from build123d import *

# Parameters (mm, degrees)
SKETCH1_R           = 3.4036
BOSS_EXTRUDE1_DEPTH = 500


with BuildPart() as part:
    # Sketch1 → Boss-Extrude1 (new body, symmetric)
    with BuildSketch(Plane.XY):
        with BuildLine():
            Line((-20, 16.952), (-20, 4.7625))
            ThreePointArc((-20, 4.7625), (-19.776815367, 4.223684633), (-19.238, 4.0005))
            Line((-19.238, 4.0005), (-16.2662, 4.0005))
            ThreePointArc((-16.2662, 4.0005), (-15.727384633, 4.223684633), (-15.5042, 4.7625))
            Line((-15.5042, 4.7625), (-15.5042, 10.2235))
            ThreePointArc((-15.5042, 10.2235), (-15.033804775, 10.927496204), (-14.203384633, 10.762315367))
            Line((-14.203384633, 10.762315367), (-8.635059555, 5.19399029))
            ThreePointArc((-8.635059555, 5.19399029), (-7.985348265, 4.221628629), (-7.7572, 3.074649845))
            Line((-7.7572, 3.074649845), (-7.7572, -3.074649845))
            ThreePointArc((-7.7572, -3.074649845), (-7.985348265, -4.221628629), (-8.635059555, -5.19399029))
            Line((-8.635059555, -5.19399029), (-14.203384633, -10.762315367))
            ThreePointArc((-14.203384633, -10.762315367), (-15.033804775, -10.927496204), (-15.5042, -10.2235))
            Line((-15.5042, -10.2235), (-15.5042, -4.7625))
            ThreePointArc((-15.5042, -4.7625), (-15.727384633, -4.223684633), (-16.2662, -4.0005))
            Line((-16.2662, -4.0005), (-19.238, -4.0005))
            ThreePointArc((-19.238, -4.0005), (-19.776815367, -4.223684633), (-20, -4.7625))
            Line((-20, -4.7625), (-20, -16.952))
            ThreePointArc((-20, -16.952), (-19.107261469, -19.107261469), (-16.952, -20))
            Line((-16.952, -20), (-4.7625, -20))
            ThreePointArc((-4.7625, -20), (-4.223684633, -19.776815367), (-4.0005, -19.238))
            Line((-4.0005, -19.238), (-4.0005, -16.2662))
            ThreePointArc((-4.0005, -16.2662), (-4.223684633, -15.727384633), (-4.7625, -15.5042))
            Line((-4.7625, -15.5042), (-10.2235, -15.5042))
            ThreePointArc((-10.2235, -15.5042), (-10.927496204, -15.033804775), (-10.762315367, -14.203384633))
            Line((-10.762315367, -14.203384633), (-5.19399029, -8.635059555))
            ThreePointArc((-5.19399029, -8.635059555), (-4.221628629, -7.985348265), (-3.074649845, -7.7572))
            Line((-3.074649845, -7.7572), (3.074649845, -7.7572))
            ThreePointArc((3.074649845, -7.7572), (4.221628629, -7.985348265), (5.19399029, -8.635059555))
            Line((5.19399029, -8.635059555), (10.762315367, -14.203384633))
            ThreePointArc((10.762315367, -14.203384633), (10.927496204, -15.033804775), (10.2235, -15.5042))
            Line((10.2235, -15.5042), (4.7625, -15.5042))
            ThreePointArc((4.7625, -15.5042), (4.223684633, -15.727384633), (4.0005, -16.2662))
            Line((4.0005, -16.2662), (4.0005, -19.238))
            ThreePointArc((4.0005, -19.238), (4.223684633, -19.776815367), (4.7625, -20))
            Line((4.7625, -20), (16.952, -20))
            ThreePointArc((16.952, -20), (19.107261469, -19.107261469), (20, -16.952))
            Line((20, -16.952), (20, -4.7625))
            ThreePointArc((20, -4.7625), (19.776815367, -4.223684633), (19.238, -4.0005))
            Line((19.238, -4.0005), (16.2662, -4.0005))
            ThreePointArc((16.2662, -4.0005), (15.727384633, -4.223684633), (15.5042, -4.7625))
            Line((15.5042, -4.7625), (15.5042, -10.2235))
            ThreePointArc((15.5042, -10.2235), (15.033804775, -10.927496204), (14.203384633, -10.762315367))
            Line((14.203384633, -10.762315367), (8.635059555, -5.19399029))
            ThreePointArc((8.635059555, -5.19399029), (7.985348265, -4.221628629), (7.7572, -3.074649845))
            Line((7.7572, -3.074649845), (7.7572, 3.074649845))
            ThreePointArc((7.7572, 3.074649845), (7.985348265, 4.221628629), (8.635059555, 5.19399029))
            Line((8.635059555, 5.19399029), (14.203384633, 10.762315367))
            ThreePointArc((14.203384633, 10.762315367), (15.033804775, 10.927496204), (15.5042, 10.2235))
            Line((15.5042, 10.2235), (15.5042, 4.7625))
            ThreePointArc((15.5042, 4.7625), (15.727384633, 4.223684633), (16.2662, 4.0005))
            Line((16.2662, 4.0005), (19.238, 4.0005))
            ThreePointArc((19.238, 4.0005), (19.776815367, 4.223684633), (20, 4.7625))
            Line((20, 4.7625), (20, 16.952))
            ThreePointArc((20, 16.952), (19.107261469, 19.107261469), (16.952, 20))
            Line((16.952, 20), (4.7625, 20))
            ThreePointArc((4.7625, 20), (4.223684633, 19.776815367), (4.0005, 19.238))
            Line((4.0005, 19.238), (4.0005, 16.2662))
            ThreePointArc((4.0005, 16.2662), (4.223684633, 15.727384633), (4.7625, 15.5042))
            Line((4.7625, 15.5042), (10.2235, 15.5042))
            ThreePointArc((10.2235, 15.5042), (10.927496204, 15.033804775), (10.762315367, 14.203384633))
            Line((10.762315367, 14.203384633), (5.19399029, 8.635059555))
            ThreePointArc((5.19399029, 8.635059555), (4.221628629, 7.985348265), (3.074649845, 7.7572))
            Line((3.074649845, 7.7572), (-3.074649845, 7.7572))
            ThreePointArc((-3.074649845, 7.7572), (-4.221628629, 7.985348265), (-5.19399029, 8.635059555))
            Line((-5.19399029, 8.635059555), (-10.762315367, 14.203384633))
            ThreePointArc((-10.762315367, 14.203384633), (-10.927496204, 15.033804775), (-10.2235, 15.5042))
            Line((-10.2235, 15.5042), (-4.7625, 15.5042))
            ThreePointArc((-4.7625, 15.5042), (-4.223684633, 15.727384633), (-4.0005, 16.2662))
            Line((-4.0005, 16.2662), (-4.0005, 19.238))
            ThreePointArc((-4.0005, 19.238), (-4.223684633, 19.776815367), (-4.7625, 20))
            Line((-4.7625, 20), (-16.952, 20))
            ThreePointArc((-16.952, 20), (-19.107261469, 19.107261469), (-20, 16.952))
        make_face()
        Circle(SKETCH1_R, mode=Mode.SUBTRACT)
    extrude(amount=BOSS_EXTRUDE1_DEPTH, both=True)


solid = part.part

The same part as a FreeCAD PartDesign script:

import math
import FreeCAD as App
import Part
import Sketcher
Q = App.Units.Quantity

doc = App.newDocument("Part")
params = doc.addObject("Spreadsheet::Sheet", "Params")
for row, (alias, value) in enumerate([
    ("sketch1_radius", "0.03 in"),
    ("sketch1_radius2", "0.12 in"),
    ("sketch1_diameter", "0.268 in"),
    ("sketch1_radius3", "0.118 in"),
    ("sketch1_width", "0.117 in"),
    ("pad1_length", "1000 mm"),
], start=1):
    params.set(f"A{row}", alias)
    params.set(f"B{row}", "=" + value)
    params.setAlias(f"B{row}", alias)

body = doc.addObject("PartDesign::Body", "Body")

# Sketch on XY plane
sketch1 = body.newObject("Sketcher::SketchObject", "Sketch")
sketch1.AttachmentSupport = (doc.getObject("XY_Plane"), [""])
sketch1.MapMode = "FlatFace"
sketch1.addGeometry([
    Part.LineSegment(App.Vector(-20, 16.952, 0), App.Vector(-20, 4.7625, 0)),  # 0
    Part.ArcOfCircle(Part.Circle(App.Vector(-19.238, 4.7625, 0), App.Vector(0, 0, 1), 0.762), math.radians(-180), math.radians(-90)),  # 1
    Part.LineSegment(App.Vector(-19.238, 4.0005, 0), App.Vector(-16.2662, 4.0005, 0)),  # 2
    Part.ArcOfCircle(Part.Circle(App.Vector(-16.2662, 4.7625, 0), App.Vector(0, 0, 1), 0.762), math.radians(-90), math.radians(0)),  # 3
    Part.LineSegment(App.Vector(-15.5042, 4.7625, 0), App.Vector(-15.5042, 10.2235, 0)),  # 4
    Part.ArcOfCircle(Part.Circle(App.Vector(-14.7422, 10.2235, 0), App.Vector(0, 0, 1), 0.762), math.radians(45), math.radians(180)),  # 5
    Part.LineSegment(App.Vector(-14.203385, 10.762315, 0), App.Vector(-8.63506, 5.19399, 0)),  # 6
    Part.ArcOfCircle(Part.Circle(App.Vector(-10.7544, 3.07465, 0), App.Vector(0, 0, 1), 2.9972), math.radians(0), math.radians(45)),  # 7
    Part.LineSegment(App.Vector(-7.7572, 3.07465, 0), App.Vector(-7.7572, -3.07465, 0)),  # 8
    Part.ArcOfCircle(Part.Circle(App.Vector(-10.7544, -3.07465, 0), App.Vector(0, 0, 1), 2.9972), math.radians(-45), math.radians(0)),  # 9
    Part.LineSegment(App.Vector(-8.63506, -5.19399, 0), App.Vector(-14.203385, -10.762315, 0)),  # 10
    Part.ArcOfCircle(Part.Circle(App.Vector(-14.7422, -10.2235, 0), App.Vector(0, 0, 1), 0.762), math.radians(180), math.radians(315)),  # 11
    Part.LineSegment(App.Vector(-15.5042, -10.2235, 0), App.Vector(-15.5042, -4.7625, 0)),  # 12
    Part.ArcOfCircle(Part.Circle(App.Vector(-16.2662, -4.7625, 0), App.Vector(0, 0, 1), 0.762), math.radians(0), math.radians(90)),  # 13
    Part.LineSegment(App.Vector(-16.2662, -4.0005, 0), App.Vector(-19.238, -4.0005, 0)),  # 14
    Part.ArcOfCircle(Part.Circle(App.Vector(-19.238, -4.7625, 0), App.Vector(0, 0, 1), 0.762), math.radians(90), math.radians(180)),  # 15
    Part.LineSegment(App.Vector(-20, -4.7625, 0), App.Vector(-20, -16.952, 0)),  # 16
    Part.ArcOfCircle(Part.Circle(App.Vector(-16.952, -16.952, 0), App.Vector(0, 0, 1), 3.048), math.radians(180), math.radians(270)),  # 17
    Part.LineSegment(App.Vector(-16.952, -20, 0), App.Vector(-4.7625, -20, 0)),  # 18
    Part.ArcOfCircle(Part.Circle(App.Vector(-4.7625, -19.238, 0), App.Vector(0, 0, 1), 0.762), math.radians(-90), math.radians(0)),  # 19
    Part.LineSegment(App.Vector(-4.0005, -19.238, 0), App.Vector(-4.0005, -16.2662, 0)),  # 20
    Part.ArcOfCircle(Part.Circle(App.Vector(-4.7625, -16.2662, 0), App.Vector(0, 0, 1), 0.762), math.radians(0), math.radians(90)),  # 21
    Part.LineSegment(App.Vector(-4.7625, -15.5042, 0), App.Vector(-10.2235, -15.5042, 0)),  # 22
    Part.ArcOfCircle(Part.Circle(App.Vector(-10.2235, -14.7422, 0), App.Vector(0, 0, 1), 0.762), math.radians(135), math.radians(270)),  # 23
    Part.LineSegment(App.Vector(-10.762315, -14.203385, 0), App.Vector(-5.19399, -8.63506, 0)),  # 24
    Part.ArcOfCircle(Part.Circle(App.Vector(-3.07465, -10.7544, 0), App.Vector(0, 0, 1), 2.9972), math.radians(90), math.radians(135)),  # 25
    Part.LineSegment(App.Vector(-3.07465, -7.7572, 0), App.Vector(3.07465, -7.7572, 0)),  # 26
    Part.ArcOfCircle(Part.Circle(App.Vector(3.07465, -10.7544, 0), App.Vector(0, 0, 1), 2.9972), math.radians(45), math.radians(90)),  # 27
    Part.LineSegment(App.Vector(5.19399, -8.63506, 0), App.Vector(10.762315, -14.203385, 0)),  # 28
    Part.ArcOfCircle(Part.Circle(App.Vector(10.2235, -14.7422, 0), App.Vector(0, 0, 1), 0.762), math.radians(-90), math.radians(45)),  # 29
    Part.LineSegment(App.Vector(10.2235, -15.5042, 0), App.Vector(4.7625, -15.5042, 0)),  # 30
    Part.ArcOfCircle(Part.Circle(App.Vector(4.7625, -16.2662, 0), App.Vector(0, 0, 1), 0.762), math.radians(90), math.radians(180)),  # 31
    Part.LineSegment(App.Vector(4.0005, -16.2662, 0), App.Vector(4.0005, -19.238, 0)),  # 32
    Part.ArcOfCircle(Part.Circle(App.Vector(4.7625, -19.238, 0), App.Vector(0, 0, 1), 0.762), math.radians(-180), math.radians(-90)),  # 33
    Part.LineSegment(App.Vector(4.7625, -20, 0), App.Vector(16.952, -20, 0)),  # 34
    Part.ArcOfCircle(Part.Circle(App.Vector(16.952, -16.952, 0), App.Vector(0, 0, 1), 3.048), math.radians(-90), math.radians(0)),  # 35
    Part.LineSegment(App.Vector(20, -16.952, 0), App.Vector(20, -4.7625, 0)),  # 36
    Part.ArcOfCircle(Part.Circle(App.Vector(19.238, -4.7625, 0), App.Vector(0, 0, 1), 0.762), math.radians(0), math.radians(90)),  # 37
    Part.LineSegment(App.Vector(19.238, -4.0005, 0), App.Vector(16.2662, -4.0005, 0)),  # 38
    Part.ArcOfCircle(Part.Circle(App.Vector(16.2662, -4.7625, 0), App.Vector(0, 0, 1), 0.762), math.radians(90), math.radians(180)),  # 39
    Part.LineSegment(App.Vector(15.5042, -4.7625, 0), App.Vector(15.5042, -10.2235, 0)),  # 40
    Part.ArcOfCircle(Part.Circle(App.Vector(14.7422, -10.2235, 0), App.Vector(0, 0, 1), 0.762), math.radians(-135), math.radians(0)),  # 41
    Part.LineSegment(App.Vector(14.203385, -10.762315, 0), App.Vector(8.63506, -5.19399, 0)),  # 42
    Part.ArcOfCircle(Part.Circle(App.Vector(10.7544, -3.07465, 0), App.Vector(0, 0, 1), 2.9972), math.radians(180), math.radians(225)),  # 43
    Part.LineSegment(App.Vector(7.7572, -3.07465, 0), App.Vector(7.7572, 3.07465, 0)),  # 44
    Part.ArcOfCircle(Part.Circle(App.Vector(10.7544, 3.07465, 0), App.Vector(0, 0, 1), 2.9972), math.radians(135), math.radians(180)),  # 45
    Part.LineSegment(App.Vector(8.63506, 5.19399, 0), App.Vector(14.203385, 10.762315, 0)),  # 46
    Part.ArcOfCircle(Part.Circle(App.Vector(14.7422, 10.2235, 0), App.Vector(0, 0, 1), 0.762), math.radians(0), math.radians(135)),  # 47
    Part.LineSegment(App.Vector(15.5042, 10.2235, 0), App.Vector(15.5042, 4.7625, 0)),  # 48
    Part.ArcOfCircle(Part.Circle(App.Vector(16.2662, 4.7625, 0), App.Vector(0, 0, 1), 0.762), math.radians(-180), math.radians(-90)),  # 49
    Part.LineSegment(App.Vector(16.2662, 4.0005, 0), App.Vector(19.238, 4.0005, 0)),  # 50
    Part.ArcOfCircle(Part.Circle(App.Vector(19.238, 4.7625, 0), App.Vector(0, 0, 1), 0.762), math.radians(-90), math.radians(0)),  # 51
    Part.LineSegment(App.Vector(20, 4.7625, 0), App.Vector(20, 16.952, 0)),  # 52
    Part.ArcOfCircle(Part.Circle(App.Vector(16.952, 16.952, 0), App.Vector(0, 0, 1), 3.048), math.radians(0), math.radians(90)),  # 53
    Part.LineSegment(App.Vector(16.952, 20, 0), App.Vector(4.7625, 20, 0)),  # 54
    Part.ArcOfCircle(Part.Circle(App.Vector(4.7625, 19.238, 0), App.Vector(0, 0, 1), 0.762), math.radians(90), math.radians(180)),  # 55
    Part.LineSegment(App.Vector(4.0005, 19.238, 0), App.Vector(4.0005, 16.2662, 0)),  # 56
    Part.ArcOfCircle(Part.Circle(App.Vector(4.7625, 16.2662, 0), App.Vector(0, 0, 1), 0.762), math.radians(-180), math.radians(-90)),  # 57
    Part.LineSegment(App.Vector(4.7625, 15.5042, 0), App.Vector(10.2235, 15.5042, 0)),  # 58
    Part.ArcOfCircle(Part.Circle(App.Vector(10.2235, 14.7422, 0), App.Vector(0, 0, 1), 0.762), math.radians(-45), math.radians(90)),  # 59
    Part.LineSegment(App.Vector(10.762315, 14.203385, 0), App.Vector(5.19399, 8.63506, 0)),  # 60
    Part.ArcOfCircle(Part.Circle(App.Vector(3.07465, 10.7544, 0), App.Vector(0, 0, 1), 2.9972), math.radians(-90), math.radians(-45)),  # 61
    Part.LineSegment(App.Vector(3.07465, 7.7572, 0), App.Vector(-3.07465, 7.7572, 0)),  # 62
    Part.ArcOfCircle(Part.Circle(App.Vector(-3.07465, 10.7544, 0), App.Vector(0, 0, 1), 2.9972), math.radians(-135), math.radians(-90)),  # 63
    Part.LineSegment(App.Vector(-5.19399, 8.63506, 0), App.Vector(-10.762315, 14.203385, 0)),  # 64
    Part.ArcOfCircle(Part.Circle(App.Vector(-10.2235, 14.7422, 0), App.Vector(0, 0, 1), 0.762), math.radians(90), math.radians(225)),  # 65
    Part.LineSegment(App.Vector(-10.2235, 15.5042, 0), App.Vector(-4.7625, 15.5042, 0)),  # 66
    Part.ArcOfCircle(Part.Circle(App.Vector(-4.7625, 16.2662, 0), App.Vector(0, 0, 1), 0.762), math.radians(-90), math.radians(0)),  # 67
    Part.LineSegment(App.Vector(-4.0005, 16.2662, 0), App.Vector(-4.0005, 19.238, 0)),  # 68
    Part.ArcOfCircle(Part.Circle(App.Vector(-4.7625, 19.238, 0), App.Vector(0, 0, 1), 0.762), math.radians(0), math.radians(90)),  # 69
    Part.LineSegment(App.Vector(-4.7625, 20, 0), App.Vector(-16.952, 20, 0)),  # 70
    Part.ArcOfCircle(Part.Circle(App.Vector(-16.952, 16.952, 0), App.Vector(0, 0, 1), 3.048), math.radians(90), math.radians(180)),  # 71
    Part.Circle(App.Vector(0, 0, 0), App.Vector(0, 0, 1), 3.4036),  # 72
], False)
sketch1.addConstraint([
    Sketcher.Constraint("Tangent", 0, 2, 1, 1),
    Sketcher.Constraint("Tangent", 1, 2, 2, 1),
    Sketcher.Constraint("Tangent", 2, 2, 3, 1),
    Sketcher.Constraint("Tangent", 3, 2, 4, 1),
    Sketcher.Constraint("Tangent", 4, 2, 5, 2),
    Sketcher.Constraint("Tangent", 5, 1, 6, 1),
    Sketcher.Constraint("Tangent", 6, 2, 7, 2),
    Sketcher.Constraint("Tangent", 7, 1, 8, 1),
    Sketcher.Constraint("Tangent", 8, 2, 9, 2),
    Sketcher.Constraint("Tangent", 9, 1, 10, 1),
    Sketcher.Constraint("Tangent", 10, 2, 11, 2),
    Sketcher.Constraint("Tangent", 11, 1, 12, 1),
    Sketcher.Constraint("Tangent", 12, 2, 13, 1),
    Sketcher.Constraint("Tangent", 13, 2, 14, 1),
    Sketcher.Constraint("Tangent", 14, 2, 15, 1),
    Sketcher.Constraint("Tangent", 15, 2, 16, 1),
    Sketcher.Constraint("Tangent", 16, 2, 17, 1),
    Sketcher.Constraint("Tangent", 17, 2, 18, 1),
    Sketcher.Constraint("Tangent", 18, 2, 19, 1),
    Sketcher.Constraint("Tangent", 19, 2, 20, 1),
    Sketcher.Constraint("Tangent", 20, 2, 21, 1),
    Sketcher.Constraint("Tangent", 21, 2, 22, 1),
    Sketcher.Constraint("Tangent", 22, 2, 23, 2),
    Sketcher.Constraint("Tangent", 23, 1, 24, 1),
    Sketcher.Constraint("Tangent", 24, 2, 25, 2),
    Sketcher.Constraint("Tangent", 25, 1, 26, 1),
    Sketcher.Constraint("Tangent", 26, 2, 27, 2),
    Sketcher.Constraint("Tangent", 27, 1, 28, 1),
    Sketcher.Constraint("Tangent", 28, 2, 29, 2),
    Sketcher.Constraint("Tangent", 29, 1, 30, 1),
    Sketcher.Constraint("Tangent", 30, 2, 31, 1),
    Sketcher.Constraint("Tangent", 31, 2, 32, 1),
    Sketcher.Constraint("Tangent", 32, 2, 33, 1),
    Sketcher.Constraint("Tangent", 33, 2, 34, 1),
    Sketcher.Constraint("Tangent", 34, 2, 35, 1),
    Sketcher.Constraint("Tangent", 35, 2, 36, 1),
    Sketcher.Constraint("Tangent", 36, 2, 37, 1),
    Sketcher.Constraint("Tangent", 37, 2, 38, 1),
    Sketcher.Constraint("Tangent", 38, 2, 39, 1),
    Sketcher.Constraint("Tangent", 39, 2, 40, 1),
    Sketcher.Constraint("Tangent", 40, 2, 41, 2),
    Sketcher.Constraint("Tangent", 41, 1, 42, 1),
    Sketcher.Constraint("Tangent", 42, 2, 43, 2),
    Sketcher.Constraint("Tangent", 43, 1, 44, 1),
    Sketcher.Constraint("Tangent", 44, 2, 45, 2),
    Sketcher.Constraint("Tangent", 45, 1, 46, 1),
    Sketcher.Constraint("Tangent", 46, 2, 47, 2),
    Sketcher.Constraint("Tangent", 47, 1, 48, 1),
    Sketcher.Constraint("Tangent", 48, 2, 49, 1),
    Sketcher.Constraint("Tangent", 49, 2, 50, 1),
    Sketcher.Constraint("Tangent", 50, 2, 51, 1),
    Sketcher.Constraint("Tangent", 51, 2, 52, 1),
    Sketcher.Constraint("Tangent", 52, 2, 53, 1),
    Sketcher.Constraint("Tangent", 53, 2, 54, 1),
    Sketcher.Constraint("Tangent", 54, 2, 55, 1),
    Sketcher.Constraint("Tangent", 55, 2, 56, 1),
    Sketcher.Constraint("Tangent", 56, 2, 57, 1),
    Sketcher.Constraint("Tangent", 57, 2, 58, 1),
    Sketcher.Constraint("Tangent", 58, 2, 59, 2),
    Sketcher.Constraint("Tangent", 59, 1, 60, 1),
    Sketcher.Constraint("Tangent", 60, 2, 61, 2),
    Sketcher.Constraint("Tangent", 61, 1, 62, 1),
    Sketcher.Constraint("Tangent", 62, 2, 63, 2),
    Sketcher.Constraint("Tangent", 63, 1, 64, 1),
    Sketcher.Constraint("Tangent", 64, 2, 65, 2),
    Sketcher.Constraint("Tangent", 65, 1, 66, 1),
    Sketcher.Constraint("Tangent", 66, 2, 67, 1),
    Sketcher.Constraint("Tangent", 67, 2, 68, 1),
    Sketcher.Constraint("Tangent", 68, 2, 69, 1),
    Sketcher.Constraint("Tangent", 69, 2, 70, 1),
    Sketcher.Constraint("Tangent", 70, 2, 71, 1),
    Sketcher.Constraint("Tangent", 71, 2, 0, 1),
    Sketcher.Constraint("Vertical", 0),
    Sketcher.Constraint("Horizontal", 2),
    Sketcher.Constraint("Vertical", 4),
    Sketcher.Constraint("Vertical", 8),
    Sketcher.Constraint("Vertical", 12),
    Sketcher.Constraint("Horizontal", 14),
    Sketcher.Constraint("Vertical", 16),
    Sketcher.Constraint("Horizontal", 18),
    Sketcher.Constraint("Vertical", 20),
    Sketcher.Constraint("Horizontal", 22),
    Sketcher.Constraint("Horizontal", 26),
    Sketcher.Constraint("Horizontal", 30),
    Sketcher.Constraint("Vertical", 32),
    Sketcher.Constraint("Horizontal", 34),
    Sketcher.Constraint("Vertical", 36),
    Sketcher.Constraint("Horizontal", 38),
    Sketcher.Constraint("Vertical", 40),
    Sketcher.Constraint("Vertical", 44),
    Sketcher.Constraint("Vertical", 48),
    Sketcher.Constraint("Horizontal", 50),
    Sketcher.Constraint("Vertical", 52),
    Sketcher.Constraint("Horizontal", 54),
    Sketcher.Constraint("Vertical", 56),
    Sketcher.Constraint("Horizontal", 58),
    Sketcher.Constraint("Horizontal", 62),
    Sketcher.Constraint("Horizontal", 66),
    Sketcher.Constraint("Vertical", 68),
    Sketcher.Constraint("Horizontal", 70),
    Sketcher.Constraint("Coincident", 72, 3, -1, 1),
    Sketcher.Constraint("Equal", 1, 3),
    Sketcher.Constraint("Equal", 3, 5),
    Sketcher.Constraint("Equal", 7, 9),
    Sketcher.Constraint("Equal", 5, 11),
    Sketcher.Constraint("Equal", 11, 13),
    Sketcher.Constraint("Equal", 13, 15),
    Sketcher.Constraint("Equal", 15, 19),
    Sketcher.Constraint("Equal", 19, 21),
    Sketcher.Constraint("Equal", 21, 23),
    Sketcher.Constraint("Equal", 9, 25),
    Sketcher.Constraint("Equal", 25, 27),
    Sketcher.Constraint("Equal", 23, 29),
    Sketcher.Constraint("Equal", 29, 31),
    Sketcher.Constraint("Equal", 31, 33),
    Sketcher.Constraint("Equal", 17, 35),
    Sketcher.Constraint("Equal", 33, 37),
    Sketcher.Constraint("Equal", 37, 39),
    Sketcher.Constraint("Equal", 39, 41),
    Sketcher.Constraint("Equal", 27, 43),
    Sketcher.Constraint("Equal", 43, 45),
    Sketcher.Constraint("Equal", 41, 47),
    Sketcher.Constraint("Equal", 47, 49),
    Sketcher.Constraint("Equal", 49, 51),
    Sketcher.Constraint("Equal", 35, 53),
    Sketcher.Constraint("Equal", 51, 55),
    Sketcher.Constraint("Equal", 55, 57),
    Sketcher.Constraint("Equal", 57, 59),
    Sketcher.Constraint("Equal", 45, 61),
    Sketcher.Constraint("Equal", 61, 63),
    Sketcher.Constraint("Equal", 59, 65),
    Sketcher.Constraint("Equal", 65, 67),
    Sketcher.Constraint("Equal", 67, 69),
    Sketcher.Constraint("Equal", 53, 71),
    Sketcher.Constraint("Symmetric", 1, 3, 37, 3, -1, 1),
    Sketcher.Constraint("Symmetric", 5, 3, 41, 3, -1, 1),
    Sketcher.Constraint("Symmetric", 7, 3, 43, 3, -1, 1),
    Sketcher.Constraint("Symmetric", 11, 3, 47, 3, -1, 1),
    Sketcher.Constraint("Symmetric", 15, 3, 51, 3, -1, 1),
    Sketcher.Constraint("Symmetric", 19, 3, 55, 3, -1, 1),
    Sketcher.Constraint("Symmetric", 23, 3, 59, 3, -1, 1),
    Sketcher.Constraint("Symmetric", 25, 3, 61, 3, -1, 1),
    Sketcher.Constraint("Symmetric", 29, 3, 65, 3, -1, 1),
    Sketcher.Constraint("Symmetric", 33, 3, 69, 3, -1, 1),
    Sketcher.Constraint("Symmetric", 23, 3, 29, 3, -2),
    Sketcher.Constraint("Symmetric", 19, 3, 33, 3, -2),
    Sketcher.Constraint("Symmetric", 15, 3, 37, 3, -2),
    Sketcher.Constraint("Symmetric", 11, 3, 41, 3, -2),
    Sketcher.Constraint("Perpendicular", 6, 10),
    Sketcher.Constraint("Parallel", 10, 24),
    Sketcher.Constraint("Perpendicular", 24, 28),
    Sketcher.Constraint("Perpendicular", 42, 46),
    Sketcher.Constraint("Perpendicular", 60, 64),
    Sketcher.Constraint("Horizontal", 9, 3, 43, 3),
    Sketcher.Constraint("Equal", 70, 0),
    Sketcher.Constraint("Equal", 66, 4),
    Sketcher.Constraint("Equal", 62, 8),
    Sketcher.Constraint("Equal", 50, 20),
    Sketcher.Constraint("Equal", 10, 24),
    Sketcher.Constraint("Radius", 1, Q("0.03 in")),
    Sketcher.Constraint("Radius", 17, Q("0.12 in")),
    Sketcher.Constraint("Diameter", 72, Q("0.268 in")),
    Sketcher.Constraint("Radius", 7, Q("0.118 in")),
    Sketcher.Constraint("DistanceX", 2, 1, 2, 2, Q("0.117 in")),
    Sketcher.Constraint("DistanceX", 22, 2, 22, 1, Q("0.215 in")),
    Sketcher.Constraint("DistanceY", -1, 1, 1, 3, Q("0.1875 in")),
    Sketcher.Constraint("DistanceX", 18, 1, 18, 2, 12.1895),
    Sketcher.Constraint("DistanceX", 26, 1, 26, 2, 6.1493),
])
sketch1.setExpression("Constraints[159]", "Params.sketch1_radius")
sketch1.setExpression("Constraints[160]", "Params.sketch1_radius2")
sketch1.setExpression("Constraints[161]", "Params.sketch1_diameter")
sketch1.setExpression("Constraints[162]", "Params.sketch1_radius3")
sketch1.setExpression("Constraints[163]", "Params.sketch1_width")
pad1 = body.newObject("PartDesign::Pad", "Pad")
pad1.Profile = sketch1
pad1.setExpression("Length", "Params.pad1_length")
pad1.Midplane = True

doc.recompute()
